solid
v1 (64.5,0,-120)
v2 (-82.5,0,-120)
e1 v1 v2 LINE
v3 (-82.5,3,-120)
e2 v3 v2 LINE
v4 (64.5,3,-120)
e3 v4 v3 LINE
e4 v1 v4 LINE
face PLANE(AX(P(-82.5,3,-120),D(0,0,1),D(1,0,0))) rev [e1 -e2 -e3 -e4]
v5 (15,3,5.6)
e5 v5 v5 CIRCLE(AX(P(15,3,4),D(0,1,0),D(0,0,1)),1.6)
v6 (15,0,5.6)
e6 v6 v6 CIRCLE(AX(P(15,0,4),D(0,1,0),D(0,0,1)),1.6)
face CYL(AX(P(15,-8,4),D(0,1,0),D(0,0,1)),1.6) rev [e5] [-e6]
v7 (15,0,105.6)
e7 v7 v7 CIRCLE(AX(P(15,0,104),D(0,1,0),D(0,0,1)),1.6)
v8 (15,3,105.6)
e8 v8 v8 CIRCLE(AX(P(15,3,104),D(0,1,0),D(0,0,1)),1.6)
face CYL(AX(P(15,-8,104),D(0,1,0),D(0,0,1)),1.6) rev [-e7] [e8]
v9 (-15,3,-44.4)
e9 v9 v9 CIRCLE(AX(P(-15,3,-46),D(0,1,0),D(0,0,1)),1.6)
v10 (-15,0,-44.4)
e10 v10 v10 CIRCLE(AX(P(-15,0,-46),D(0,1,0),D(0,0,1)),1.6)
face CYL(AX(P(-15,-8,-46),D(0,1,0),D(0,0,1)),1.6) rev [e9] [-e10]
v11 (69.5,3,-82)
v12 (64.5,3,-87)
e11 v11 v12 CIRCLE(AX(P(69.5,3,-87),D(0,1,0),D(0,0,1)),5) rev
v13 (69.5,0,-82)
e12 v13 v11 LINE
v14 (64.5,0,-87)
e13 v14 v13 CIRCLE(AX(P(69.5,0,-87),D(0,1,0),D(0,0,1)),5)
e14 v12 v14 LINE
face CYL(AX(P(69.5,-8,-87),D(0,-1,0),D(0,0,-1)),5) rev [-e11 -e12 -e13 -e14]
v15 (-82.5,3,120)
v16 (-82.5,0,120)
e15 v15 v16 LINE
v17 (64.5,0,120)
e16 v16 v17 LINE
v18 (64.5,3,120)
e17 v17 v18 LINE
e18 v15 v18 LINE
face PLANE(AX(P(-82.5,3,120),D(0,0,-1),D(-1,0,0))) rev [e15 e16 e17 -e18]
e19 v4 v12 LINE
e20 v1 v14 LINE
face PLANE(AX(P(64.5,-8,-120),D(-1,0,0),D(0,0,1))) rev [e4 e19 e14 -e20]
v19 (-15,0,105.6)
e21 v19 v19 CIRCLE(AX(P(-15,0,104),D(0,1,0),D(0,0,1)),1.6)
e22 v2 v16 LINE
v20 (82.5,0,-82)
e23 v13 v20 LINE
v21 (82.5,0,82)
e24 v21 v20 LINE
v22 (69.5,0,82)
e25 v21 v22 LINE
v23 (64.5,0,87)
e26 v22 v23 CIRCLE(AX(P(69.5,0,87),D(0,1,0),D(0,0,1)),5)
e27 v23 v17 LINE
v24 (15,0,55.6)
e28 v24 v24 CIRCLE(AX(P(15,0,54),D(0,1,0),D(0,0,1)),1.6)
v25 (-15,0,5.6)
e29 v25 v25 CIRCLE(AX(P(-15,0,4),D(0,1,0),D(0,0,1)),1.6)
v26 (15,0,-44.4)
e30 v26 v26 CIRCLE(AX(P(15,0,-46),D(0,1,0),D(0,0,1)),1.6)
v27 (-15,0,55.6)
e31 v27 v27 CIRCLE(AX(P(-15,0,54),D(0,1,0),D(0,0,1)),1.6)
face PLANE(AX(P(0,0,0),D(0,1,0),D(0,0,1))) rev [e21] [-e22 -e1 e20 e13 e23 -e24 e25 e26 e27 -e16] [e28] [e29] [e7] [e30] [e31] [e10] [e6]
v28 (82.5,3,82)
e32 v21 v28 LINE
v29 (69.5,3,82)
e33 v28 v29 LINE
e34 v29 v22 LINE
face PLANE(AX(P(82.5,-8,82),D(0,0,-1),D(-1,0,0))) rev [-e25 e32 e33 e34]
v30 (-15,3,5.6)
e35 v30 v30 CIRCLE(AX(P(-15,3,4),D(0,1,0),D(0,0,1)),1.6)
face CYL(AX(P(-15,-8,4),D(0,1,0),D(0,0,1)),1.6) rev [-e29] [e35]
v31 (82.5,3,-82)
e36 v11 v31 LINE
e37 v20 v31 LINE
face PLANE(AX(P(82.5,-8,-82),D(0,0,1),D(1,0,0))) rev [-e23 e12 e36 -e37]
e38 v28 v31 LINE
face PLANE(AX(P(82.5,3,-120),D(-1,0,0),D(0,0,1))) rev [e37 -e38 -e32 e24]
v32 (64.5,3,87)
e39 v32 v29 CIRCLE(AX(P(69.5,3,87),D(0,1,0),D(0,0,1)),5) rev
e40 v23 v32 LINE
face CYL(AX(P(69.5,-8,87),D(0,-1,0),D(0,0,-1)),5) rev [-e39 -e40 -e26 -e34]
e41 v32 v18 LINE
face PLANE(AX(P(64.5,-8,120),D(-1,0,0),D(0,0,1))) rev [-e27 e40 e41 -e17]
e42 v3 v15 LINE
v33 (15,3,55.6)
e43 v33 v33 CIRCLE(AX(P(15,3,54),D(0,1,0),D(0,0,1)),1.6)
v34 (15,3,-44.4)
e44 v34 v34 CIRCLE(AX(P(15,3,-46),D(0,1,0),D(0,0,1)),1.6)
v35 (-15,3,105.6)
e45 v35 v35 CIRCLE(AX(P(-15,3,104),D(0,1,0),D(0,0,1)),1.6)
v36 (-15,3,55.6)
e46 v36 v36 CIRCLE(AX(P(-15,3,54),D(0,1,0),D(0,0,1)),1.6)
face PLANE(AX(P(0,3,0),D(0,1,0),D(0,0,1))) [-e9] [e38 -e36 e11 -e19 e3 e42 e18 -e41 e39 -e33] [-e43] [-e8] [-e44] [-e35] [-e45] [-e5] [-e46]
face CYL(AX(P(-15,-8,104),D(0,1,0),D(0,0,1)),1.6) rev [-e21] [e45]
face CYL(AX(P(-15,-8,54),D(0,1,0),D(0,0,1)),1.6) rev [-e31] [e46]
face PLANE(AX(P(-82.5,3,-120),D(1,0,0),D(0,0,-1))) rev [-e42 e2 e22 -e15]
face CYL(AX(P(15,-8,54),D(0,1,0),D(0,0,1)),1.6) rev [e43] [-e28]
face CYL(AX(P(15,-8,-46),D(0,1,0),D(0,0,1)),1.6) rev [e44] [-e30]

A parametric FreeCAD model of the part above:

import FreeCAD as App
import Part
import Sketcher


def edges_at(feature, points):
    """Names of the edges that pass closest to the given points."""
    edges = feature.Shape.Edges
    near = lambda p: min(range(len(edges)), key=lambda i: edges[i].distToShape(Part.Vertex(*p))[0])
    return sorted({f"Edge{near(p) + 1}" for p in points})

doc = App.newDocument("Part")
params = doc.addObject("Spreadsheet::Sheet", "Params")
for row, (alias, value) in enumerate([
    ("sketch1_width", "165 mm"),
    ("sketch1_height", "240 mm"),
    ("pad1_length", "3 mm"),
    ("sketch2_diameter", "3.2 mm"),
    ("pocket1_length", "11 mm"),
    ("sketch3_width", "18 mm"),
    ("sketch3_height", "38 mm"),
    ("pocket2_length", "11 mm"),
    ("fillet_radius", "5 mm"),
], start=1):
    params.set(f"A{row}", alias)
    params.set(f"B{row}", "=" + value)
    params.setAlias(f"B{row}", alias)

body = doc.addObject("PartDesign::Body", "Body")

# Sketch on XZ plane
sketch1 = body.newObject("Sketcher::SketchObject", "Sketch")
sketch1.AttachmentSupport = (doc.getObject("XZ_Plane"), [""])
sketch1.MapMode = "FlatFace"
sketch1.addGeometry([
    Part.LineSegment(App.Vector(-82.5, -120, 0), App.Vector(-82.5, 120, 0)),
    Part.LineSegment(App.Vector(-82.5, 120, 0), App.Vector(82.5, 120, 0)),
    Part.LineSegment(App.Vector(82.5, 120, 0), App.Vector(82.5, -120, 0)),
    Part.LineSegment(App.Vector(82.5, -120, 0), App.Vector(-82.5, -120, 0)),
], False)
sketch1.addConstraint([
    Sketcher.Constraint("Coincident", 0, 2, 1, 1),
    Sketcher.Constraint("Coincident", 1, 2, 2, 1),
    Sketcher.Constraint("Coincident", 2, 2, 3, 1),
    Sketcher.Constraint("Coincident", 3, 2, 0, 1),
    Sketcher.Constraint("Vertical", 0),
    Sketcher.Constraint("Horizontal", 1),
    Sketcher.Constraint("Vertical", 2),
    Sketcher.Constraint("Horizontal", 3),
    Sketcher.Constraint("Symmetric", 0, 2, 2, 2, -1, 1),
    Sketcher.Constraint("DistanceX", 1, 1, 1, 2, 165.0),
    Sketcher.Constraint("DistanceY", 0, 1, 0, 2, 240.0),
])
sketch1.setExpression("Constraints[9]", "Params.sketch1_width")
sketch1.setExpression("Constraints[10]", "Params.sketch1_height")
pad1 = body.newObject("PartDesign::Pad", "Pad")
pad1.Profile = sketch1
pad1.setExpression("Length", "Params.pad1_length")
pad1.Reversed = True

# Sketch on XZ plane
sketch2 = body.newObject("Sketcher::SketchObject", "Sketch001")
sketch2.AttachmentSupport = (doc.getObject("XZ_Plane"), [""])
sketch2.MapMode = "FlatFace"
sketch2.AttachmentOffset = App.Placement(App.Vector(0, 0, -3), App.Rotation())
sketch2.addGeometry([
    Part.Circle(App.Vector(15, -46, 0), App.Vector(0, 0, 1), 1.6),  # 0
    Part.Circle(App.Vector(-15, -46, 0), App.Vector(0, 0, 1), 1.6),  # 1
    Part.Circle(App.Vector(15, 4, 0), App.Vector(0, 0, 1), 1.6),  # 2
    Part.Circle(App.Vector(-15, 4, 0), App.Vector(0, 0, 1), 1.6),  # 3
    Part.Circle(App.Vector(15, 54, 0), App.Vector(0, 0, 1), 1.6),  # 4
    Part.Circle(App.Vector(-15, 54, 0), App.Vector(0, 0, 1), 1.6),  # 5
    Part.Circle(App.Vector(15, 104, 0), App.Vector(0, 0, 1), 1.6),  # 6
    Part.Circle(App.Vector(-15, 104, 0), App.Vector(0, 0, 1), 1.6),  # 7
], False)
sketch2.addConstraint([
    Sketcher.Constraint("Equal", 0, 1),
    Sketcher.Constraint("Equal", 1, 2),
    Sketcher.Constraint("Equal", 2, 3),
    Sketcher.Constraint("Equal", 3, 4),
    Sketcher.Constraint("Equal", 4, 5),
    Sketcher.Constraint("Equal", 5, 6),
    Sketcher.Constraint("Equal", 6, 7),
    Sketcher.Constraint("Symmetric", 0, 3, 1, 3, -2),
    Sketcher.Constraint("Symmetric", 2, 3, 3, 3, -2),
    Sketcher.Constraint("Symmetric", 4, 3, 5, 3, -2),
    Sketcher.Constraint("Symmetric", 6, 3, 7, 3, -2),
    Sketcher.Constraint("Vertical", 0, 3, 2, 3),
    Sketcher.Constraint("Vertical", 2, 3, 4, 3),
    Sketcher.Constraint("Vertical", 4, 3, 6, 3),
    Sketcher.Constraint("Diameter", 0, 3.2),
    Sketcher.Constraint("DistanceX", -1, 1, 0, 3, 15.0),
    Sketcher.Constraint("DistanceY", 0, 3, -1, 1, 46.0),
    Sketcher.Constraint("DistanceY", -1, 1, 2, 3, 4.0),
    Sketcher.Constraint("DistanceY", -1, 1, 4, 3, 54.0),
    Sketcher.Constraint("DistanceY", -1, 1, 6, 3, 104.0),
])
sketch2.setExpression("Constraints[14]", "Params.sketch2_diameter")
pocket1 = body.newObject("PartDesign::Pocket", "Pocket")
pocket1.Profile = sketch2
pocket1.setExpression("Length", "Params.pocket1_length")
pocket1.Reversed = True

# Sketch on XZ plane
sketch3 = body.newObject("Sketcher::SketchObject", "Sketch002")
sketch3.AttachmentSupport = (doc.getObject("XZ_Plane"), [""])
sketch3.MapMode = "FlatFace"
sketch3.AttachmentOffset = App.Placement(App.Vector(0, 0, -3), App.Rotation())
sketch3.addGeometry([
    Part.LineSegment(App.Vector(64.5, -120, 0), App.Vector(64.5, -82, 0)),  # 0
    Part.LineSegment(App.Vector(64.5, -82, 0), App.Vector(82.5, -82, 0)),  # 1
    Part.LineSegment(App.Vector(82.5, -82, 0), App.Vector(82.5, -120, 0)),  # 2
    Part.LineSegment(App.Vector(82.5, -120, 0), App.Vector(64.5, -120, 0)),  # 3
    Part.LineSegment(App.Vector(64.5, 82, 0), App.Vector(64.5, 120, 0)),  # 4
    Part.LineSegment(App.Vector(64.5, 120, 0), App.Vector(82.5, 120, 0)),  # 5
    Part.LineSegment(App.Vector(82.5, 120, 0), App.Vector(82.5, 82, 0)),  # 6
    Part.LineSegment(App.Vector(82.5, 82, 0), App.Vector(64.5, 82, 0)),  # 7
], False)
sketch3.addConstraint([
    Sketcher.Constraint("Coincident", 0, 2, 1, 1),
    Sketcher.Constraint("Coincident", 1, 2, 2, 1),
    Sketcher.Constraint("Coincident", 2, 2, 3, 1),
    Sketcher.Constraint("Coincident", 3, 2, 0, 1),
    Sketcher.Constraint("Coincident", 4, 2, 5, 1),
    Sketcher.Constraint("Coincident", 5, 2, 6, 1),
    Sketcher.Constraint("Coincident", 6, 2, 7, 1),
    Sketcher.Constraint("Coincident", 7, 2, 4, 1),
    Sketcher.Constraint("Vertical", 0),
    Sketcher.Constraint("Horizontal", 1),
    Sketcher.Constraint("Vertical", 2),
    Sketcher.Constraint("Horizontal", 3),
    Sketcher.Constraint("Vertical", 4),
    Sketcher.Constraint("Horizontal", 5),
    Sketcher.Constraint("Vertical", 6),
    Sketcher.Constraint("Horizontal", 7),
    Sketcher.Constraint("Symmetric", 3, 2, 4, 2, -1),
    Sketcher.Constraint("Symmetric", 1, 2, 6, 2, -1),
    Sketcher.Constraint("DistanceX", 1, 1, 1, 2, 18.0),
    Sketcher.Constraint("DistanceY", 0, 1, 0, 2, 38.0),
    Sketcher.Constraint("DistanceY", 0, 2, -1, 1, 82.0),
    Sketcher.Constraint("DistanceX", -1, 1, 0, 2, 64.5),
])
sketch3.setExpression("Constraints[18]", "Params.sketch3_width")
sketch3.setExpression("Constraints[19]", "Params.sketch3_height")
pocket2 = body.newObject("PartDesign::Pocket", "Pocket001")
pocket2.Profile = sketch3
pocket2.setExpression("Length", "Params.pocket2_length")
pocket2.Reversed = True
doc.recompute()

fillet = body.newObject("PartDesign::Fillet", "Fillet")
fillet.Base = (pocket2, edges_at(pocket2, [(64.5, 1.5, -82), (64.5, 1.5, 82)]))
fillet.setExpression("Radius", "Params.fillet_radius")

doc.recompute()
